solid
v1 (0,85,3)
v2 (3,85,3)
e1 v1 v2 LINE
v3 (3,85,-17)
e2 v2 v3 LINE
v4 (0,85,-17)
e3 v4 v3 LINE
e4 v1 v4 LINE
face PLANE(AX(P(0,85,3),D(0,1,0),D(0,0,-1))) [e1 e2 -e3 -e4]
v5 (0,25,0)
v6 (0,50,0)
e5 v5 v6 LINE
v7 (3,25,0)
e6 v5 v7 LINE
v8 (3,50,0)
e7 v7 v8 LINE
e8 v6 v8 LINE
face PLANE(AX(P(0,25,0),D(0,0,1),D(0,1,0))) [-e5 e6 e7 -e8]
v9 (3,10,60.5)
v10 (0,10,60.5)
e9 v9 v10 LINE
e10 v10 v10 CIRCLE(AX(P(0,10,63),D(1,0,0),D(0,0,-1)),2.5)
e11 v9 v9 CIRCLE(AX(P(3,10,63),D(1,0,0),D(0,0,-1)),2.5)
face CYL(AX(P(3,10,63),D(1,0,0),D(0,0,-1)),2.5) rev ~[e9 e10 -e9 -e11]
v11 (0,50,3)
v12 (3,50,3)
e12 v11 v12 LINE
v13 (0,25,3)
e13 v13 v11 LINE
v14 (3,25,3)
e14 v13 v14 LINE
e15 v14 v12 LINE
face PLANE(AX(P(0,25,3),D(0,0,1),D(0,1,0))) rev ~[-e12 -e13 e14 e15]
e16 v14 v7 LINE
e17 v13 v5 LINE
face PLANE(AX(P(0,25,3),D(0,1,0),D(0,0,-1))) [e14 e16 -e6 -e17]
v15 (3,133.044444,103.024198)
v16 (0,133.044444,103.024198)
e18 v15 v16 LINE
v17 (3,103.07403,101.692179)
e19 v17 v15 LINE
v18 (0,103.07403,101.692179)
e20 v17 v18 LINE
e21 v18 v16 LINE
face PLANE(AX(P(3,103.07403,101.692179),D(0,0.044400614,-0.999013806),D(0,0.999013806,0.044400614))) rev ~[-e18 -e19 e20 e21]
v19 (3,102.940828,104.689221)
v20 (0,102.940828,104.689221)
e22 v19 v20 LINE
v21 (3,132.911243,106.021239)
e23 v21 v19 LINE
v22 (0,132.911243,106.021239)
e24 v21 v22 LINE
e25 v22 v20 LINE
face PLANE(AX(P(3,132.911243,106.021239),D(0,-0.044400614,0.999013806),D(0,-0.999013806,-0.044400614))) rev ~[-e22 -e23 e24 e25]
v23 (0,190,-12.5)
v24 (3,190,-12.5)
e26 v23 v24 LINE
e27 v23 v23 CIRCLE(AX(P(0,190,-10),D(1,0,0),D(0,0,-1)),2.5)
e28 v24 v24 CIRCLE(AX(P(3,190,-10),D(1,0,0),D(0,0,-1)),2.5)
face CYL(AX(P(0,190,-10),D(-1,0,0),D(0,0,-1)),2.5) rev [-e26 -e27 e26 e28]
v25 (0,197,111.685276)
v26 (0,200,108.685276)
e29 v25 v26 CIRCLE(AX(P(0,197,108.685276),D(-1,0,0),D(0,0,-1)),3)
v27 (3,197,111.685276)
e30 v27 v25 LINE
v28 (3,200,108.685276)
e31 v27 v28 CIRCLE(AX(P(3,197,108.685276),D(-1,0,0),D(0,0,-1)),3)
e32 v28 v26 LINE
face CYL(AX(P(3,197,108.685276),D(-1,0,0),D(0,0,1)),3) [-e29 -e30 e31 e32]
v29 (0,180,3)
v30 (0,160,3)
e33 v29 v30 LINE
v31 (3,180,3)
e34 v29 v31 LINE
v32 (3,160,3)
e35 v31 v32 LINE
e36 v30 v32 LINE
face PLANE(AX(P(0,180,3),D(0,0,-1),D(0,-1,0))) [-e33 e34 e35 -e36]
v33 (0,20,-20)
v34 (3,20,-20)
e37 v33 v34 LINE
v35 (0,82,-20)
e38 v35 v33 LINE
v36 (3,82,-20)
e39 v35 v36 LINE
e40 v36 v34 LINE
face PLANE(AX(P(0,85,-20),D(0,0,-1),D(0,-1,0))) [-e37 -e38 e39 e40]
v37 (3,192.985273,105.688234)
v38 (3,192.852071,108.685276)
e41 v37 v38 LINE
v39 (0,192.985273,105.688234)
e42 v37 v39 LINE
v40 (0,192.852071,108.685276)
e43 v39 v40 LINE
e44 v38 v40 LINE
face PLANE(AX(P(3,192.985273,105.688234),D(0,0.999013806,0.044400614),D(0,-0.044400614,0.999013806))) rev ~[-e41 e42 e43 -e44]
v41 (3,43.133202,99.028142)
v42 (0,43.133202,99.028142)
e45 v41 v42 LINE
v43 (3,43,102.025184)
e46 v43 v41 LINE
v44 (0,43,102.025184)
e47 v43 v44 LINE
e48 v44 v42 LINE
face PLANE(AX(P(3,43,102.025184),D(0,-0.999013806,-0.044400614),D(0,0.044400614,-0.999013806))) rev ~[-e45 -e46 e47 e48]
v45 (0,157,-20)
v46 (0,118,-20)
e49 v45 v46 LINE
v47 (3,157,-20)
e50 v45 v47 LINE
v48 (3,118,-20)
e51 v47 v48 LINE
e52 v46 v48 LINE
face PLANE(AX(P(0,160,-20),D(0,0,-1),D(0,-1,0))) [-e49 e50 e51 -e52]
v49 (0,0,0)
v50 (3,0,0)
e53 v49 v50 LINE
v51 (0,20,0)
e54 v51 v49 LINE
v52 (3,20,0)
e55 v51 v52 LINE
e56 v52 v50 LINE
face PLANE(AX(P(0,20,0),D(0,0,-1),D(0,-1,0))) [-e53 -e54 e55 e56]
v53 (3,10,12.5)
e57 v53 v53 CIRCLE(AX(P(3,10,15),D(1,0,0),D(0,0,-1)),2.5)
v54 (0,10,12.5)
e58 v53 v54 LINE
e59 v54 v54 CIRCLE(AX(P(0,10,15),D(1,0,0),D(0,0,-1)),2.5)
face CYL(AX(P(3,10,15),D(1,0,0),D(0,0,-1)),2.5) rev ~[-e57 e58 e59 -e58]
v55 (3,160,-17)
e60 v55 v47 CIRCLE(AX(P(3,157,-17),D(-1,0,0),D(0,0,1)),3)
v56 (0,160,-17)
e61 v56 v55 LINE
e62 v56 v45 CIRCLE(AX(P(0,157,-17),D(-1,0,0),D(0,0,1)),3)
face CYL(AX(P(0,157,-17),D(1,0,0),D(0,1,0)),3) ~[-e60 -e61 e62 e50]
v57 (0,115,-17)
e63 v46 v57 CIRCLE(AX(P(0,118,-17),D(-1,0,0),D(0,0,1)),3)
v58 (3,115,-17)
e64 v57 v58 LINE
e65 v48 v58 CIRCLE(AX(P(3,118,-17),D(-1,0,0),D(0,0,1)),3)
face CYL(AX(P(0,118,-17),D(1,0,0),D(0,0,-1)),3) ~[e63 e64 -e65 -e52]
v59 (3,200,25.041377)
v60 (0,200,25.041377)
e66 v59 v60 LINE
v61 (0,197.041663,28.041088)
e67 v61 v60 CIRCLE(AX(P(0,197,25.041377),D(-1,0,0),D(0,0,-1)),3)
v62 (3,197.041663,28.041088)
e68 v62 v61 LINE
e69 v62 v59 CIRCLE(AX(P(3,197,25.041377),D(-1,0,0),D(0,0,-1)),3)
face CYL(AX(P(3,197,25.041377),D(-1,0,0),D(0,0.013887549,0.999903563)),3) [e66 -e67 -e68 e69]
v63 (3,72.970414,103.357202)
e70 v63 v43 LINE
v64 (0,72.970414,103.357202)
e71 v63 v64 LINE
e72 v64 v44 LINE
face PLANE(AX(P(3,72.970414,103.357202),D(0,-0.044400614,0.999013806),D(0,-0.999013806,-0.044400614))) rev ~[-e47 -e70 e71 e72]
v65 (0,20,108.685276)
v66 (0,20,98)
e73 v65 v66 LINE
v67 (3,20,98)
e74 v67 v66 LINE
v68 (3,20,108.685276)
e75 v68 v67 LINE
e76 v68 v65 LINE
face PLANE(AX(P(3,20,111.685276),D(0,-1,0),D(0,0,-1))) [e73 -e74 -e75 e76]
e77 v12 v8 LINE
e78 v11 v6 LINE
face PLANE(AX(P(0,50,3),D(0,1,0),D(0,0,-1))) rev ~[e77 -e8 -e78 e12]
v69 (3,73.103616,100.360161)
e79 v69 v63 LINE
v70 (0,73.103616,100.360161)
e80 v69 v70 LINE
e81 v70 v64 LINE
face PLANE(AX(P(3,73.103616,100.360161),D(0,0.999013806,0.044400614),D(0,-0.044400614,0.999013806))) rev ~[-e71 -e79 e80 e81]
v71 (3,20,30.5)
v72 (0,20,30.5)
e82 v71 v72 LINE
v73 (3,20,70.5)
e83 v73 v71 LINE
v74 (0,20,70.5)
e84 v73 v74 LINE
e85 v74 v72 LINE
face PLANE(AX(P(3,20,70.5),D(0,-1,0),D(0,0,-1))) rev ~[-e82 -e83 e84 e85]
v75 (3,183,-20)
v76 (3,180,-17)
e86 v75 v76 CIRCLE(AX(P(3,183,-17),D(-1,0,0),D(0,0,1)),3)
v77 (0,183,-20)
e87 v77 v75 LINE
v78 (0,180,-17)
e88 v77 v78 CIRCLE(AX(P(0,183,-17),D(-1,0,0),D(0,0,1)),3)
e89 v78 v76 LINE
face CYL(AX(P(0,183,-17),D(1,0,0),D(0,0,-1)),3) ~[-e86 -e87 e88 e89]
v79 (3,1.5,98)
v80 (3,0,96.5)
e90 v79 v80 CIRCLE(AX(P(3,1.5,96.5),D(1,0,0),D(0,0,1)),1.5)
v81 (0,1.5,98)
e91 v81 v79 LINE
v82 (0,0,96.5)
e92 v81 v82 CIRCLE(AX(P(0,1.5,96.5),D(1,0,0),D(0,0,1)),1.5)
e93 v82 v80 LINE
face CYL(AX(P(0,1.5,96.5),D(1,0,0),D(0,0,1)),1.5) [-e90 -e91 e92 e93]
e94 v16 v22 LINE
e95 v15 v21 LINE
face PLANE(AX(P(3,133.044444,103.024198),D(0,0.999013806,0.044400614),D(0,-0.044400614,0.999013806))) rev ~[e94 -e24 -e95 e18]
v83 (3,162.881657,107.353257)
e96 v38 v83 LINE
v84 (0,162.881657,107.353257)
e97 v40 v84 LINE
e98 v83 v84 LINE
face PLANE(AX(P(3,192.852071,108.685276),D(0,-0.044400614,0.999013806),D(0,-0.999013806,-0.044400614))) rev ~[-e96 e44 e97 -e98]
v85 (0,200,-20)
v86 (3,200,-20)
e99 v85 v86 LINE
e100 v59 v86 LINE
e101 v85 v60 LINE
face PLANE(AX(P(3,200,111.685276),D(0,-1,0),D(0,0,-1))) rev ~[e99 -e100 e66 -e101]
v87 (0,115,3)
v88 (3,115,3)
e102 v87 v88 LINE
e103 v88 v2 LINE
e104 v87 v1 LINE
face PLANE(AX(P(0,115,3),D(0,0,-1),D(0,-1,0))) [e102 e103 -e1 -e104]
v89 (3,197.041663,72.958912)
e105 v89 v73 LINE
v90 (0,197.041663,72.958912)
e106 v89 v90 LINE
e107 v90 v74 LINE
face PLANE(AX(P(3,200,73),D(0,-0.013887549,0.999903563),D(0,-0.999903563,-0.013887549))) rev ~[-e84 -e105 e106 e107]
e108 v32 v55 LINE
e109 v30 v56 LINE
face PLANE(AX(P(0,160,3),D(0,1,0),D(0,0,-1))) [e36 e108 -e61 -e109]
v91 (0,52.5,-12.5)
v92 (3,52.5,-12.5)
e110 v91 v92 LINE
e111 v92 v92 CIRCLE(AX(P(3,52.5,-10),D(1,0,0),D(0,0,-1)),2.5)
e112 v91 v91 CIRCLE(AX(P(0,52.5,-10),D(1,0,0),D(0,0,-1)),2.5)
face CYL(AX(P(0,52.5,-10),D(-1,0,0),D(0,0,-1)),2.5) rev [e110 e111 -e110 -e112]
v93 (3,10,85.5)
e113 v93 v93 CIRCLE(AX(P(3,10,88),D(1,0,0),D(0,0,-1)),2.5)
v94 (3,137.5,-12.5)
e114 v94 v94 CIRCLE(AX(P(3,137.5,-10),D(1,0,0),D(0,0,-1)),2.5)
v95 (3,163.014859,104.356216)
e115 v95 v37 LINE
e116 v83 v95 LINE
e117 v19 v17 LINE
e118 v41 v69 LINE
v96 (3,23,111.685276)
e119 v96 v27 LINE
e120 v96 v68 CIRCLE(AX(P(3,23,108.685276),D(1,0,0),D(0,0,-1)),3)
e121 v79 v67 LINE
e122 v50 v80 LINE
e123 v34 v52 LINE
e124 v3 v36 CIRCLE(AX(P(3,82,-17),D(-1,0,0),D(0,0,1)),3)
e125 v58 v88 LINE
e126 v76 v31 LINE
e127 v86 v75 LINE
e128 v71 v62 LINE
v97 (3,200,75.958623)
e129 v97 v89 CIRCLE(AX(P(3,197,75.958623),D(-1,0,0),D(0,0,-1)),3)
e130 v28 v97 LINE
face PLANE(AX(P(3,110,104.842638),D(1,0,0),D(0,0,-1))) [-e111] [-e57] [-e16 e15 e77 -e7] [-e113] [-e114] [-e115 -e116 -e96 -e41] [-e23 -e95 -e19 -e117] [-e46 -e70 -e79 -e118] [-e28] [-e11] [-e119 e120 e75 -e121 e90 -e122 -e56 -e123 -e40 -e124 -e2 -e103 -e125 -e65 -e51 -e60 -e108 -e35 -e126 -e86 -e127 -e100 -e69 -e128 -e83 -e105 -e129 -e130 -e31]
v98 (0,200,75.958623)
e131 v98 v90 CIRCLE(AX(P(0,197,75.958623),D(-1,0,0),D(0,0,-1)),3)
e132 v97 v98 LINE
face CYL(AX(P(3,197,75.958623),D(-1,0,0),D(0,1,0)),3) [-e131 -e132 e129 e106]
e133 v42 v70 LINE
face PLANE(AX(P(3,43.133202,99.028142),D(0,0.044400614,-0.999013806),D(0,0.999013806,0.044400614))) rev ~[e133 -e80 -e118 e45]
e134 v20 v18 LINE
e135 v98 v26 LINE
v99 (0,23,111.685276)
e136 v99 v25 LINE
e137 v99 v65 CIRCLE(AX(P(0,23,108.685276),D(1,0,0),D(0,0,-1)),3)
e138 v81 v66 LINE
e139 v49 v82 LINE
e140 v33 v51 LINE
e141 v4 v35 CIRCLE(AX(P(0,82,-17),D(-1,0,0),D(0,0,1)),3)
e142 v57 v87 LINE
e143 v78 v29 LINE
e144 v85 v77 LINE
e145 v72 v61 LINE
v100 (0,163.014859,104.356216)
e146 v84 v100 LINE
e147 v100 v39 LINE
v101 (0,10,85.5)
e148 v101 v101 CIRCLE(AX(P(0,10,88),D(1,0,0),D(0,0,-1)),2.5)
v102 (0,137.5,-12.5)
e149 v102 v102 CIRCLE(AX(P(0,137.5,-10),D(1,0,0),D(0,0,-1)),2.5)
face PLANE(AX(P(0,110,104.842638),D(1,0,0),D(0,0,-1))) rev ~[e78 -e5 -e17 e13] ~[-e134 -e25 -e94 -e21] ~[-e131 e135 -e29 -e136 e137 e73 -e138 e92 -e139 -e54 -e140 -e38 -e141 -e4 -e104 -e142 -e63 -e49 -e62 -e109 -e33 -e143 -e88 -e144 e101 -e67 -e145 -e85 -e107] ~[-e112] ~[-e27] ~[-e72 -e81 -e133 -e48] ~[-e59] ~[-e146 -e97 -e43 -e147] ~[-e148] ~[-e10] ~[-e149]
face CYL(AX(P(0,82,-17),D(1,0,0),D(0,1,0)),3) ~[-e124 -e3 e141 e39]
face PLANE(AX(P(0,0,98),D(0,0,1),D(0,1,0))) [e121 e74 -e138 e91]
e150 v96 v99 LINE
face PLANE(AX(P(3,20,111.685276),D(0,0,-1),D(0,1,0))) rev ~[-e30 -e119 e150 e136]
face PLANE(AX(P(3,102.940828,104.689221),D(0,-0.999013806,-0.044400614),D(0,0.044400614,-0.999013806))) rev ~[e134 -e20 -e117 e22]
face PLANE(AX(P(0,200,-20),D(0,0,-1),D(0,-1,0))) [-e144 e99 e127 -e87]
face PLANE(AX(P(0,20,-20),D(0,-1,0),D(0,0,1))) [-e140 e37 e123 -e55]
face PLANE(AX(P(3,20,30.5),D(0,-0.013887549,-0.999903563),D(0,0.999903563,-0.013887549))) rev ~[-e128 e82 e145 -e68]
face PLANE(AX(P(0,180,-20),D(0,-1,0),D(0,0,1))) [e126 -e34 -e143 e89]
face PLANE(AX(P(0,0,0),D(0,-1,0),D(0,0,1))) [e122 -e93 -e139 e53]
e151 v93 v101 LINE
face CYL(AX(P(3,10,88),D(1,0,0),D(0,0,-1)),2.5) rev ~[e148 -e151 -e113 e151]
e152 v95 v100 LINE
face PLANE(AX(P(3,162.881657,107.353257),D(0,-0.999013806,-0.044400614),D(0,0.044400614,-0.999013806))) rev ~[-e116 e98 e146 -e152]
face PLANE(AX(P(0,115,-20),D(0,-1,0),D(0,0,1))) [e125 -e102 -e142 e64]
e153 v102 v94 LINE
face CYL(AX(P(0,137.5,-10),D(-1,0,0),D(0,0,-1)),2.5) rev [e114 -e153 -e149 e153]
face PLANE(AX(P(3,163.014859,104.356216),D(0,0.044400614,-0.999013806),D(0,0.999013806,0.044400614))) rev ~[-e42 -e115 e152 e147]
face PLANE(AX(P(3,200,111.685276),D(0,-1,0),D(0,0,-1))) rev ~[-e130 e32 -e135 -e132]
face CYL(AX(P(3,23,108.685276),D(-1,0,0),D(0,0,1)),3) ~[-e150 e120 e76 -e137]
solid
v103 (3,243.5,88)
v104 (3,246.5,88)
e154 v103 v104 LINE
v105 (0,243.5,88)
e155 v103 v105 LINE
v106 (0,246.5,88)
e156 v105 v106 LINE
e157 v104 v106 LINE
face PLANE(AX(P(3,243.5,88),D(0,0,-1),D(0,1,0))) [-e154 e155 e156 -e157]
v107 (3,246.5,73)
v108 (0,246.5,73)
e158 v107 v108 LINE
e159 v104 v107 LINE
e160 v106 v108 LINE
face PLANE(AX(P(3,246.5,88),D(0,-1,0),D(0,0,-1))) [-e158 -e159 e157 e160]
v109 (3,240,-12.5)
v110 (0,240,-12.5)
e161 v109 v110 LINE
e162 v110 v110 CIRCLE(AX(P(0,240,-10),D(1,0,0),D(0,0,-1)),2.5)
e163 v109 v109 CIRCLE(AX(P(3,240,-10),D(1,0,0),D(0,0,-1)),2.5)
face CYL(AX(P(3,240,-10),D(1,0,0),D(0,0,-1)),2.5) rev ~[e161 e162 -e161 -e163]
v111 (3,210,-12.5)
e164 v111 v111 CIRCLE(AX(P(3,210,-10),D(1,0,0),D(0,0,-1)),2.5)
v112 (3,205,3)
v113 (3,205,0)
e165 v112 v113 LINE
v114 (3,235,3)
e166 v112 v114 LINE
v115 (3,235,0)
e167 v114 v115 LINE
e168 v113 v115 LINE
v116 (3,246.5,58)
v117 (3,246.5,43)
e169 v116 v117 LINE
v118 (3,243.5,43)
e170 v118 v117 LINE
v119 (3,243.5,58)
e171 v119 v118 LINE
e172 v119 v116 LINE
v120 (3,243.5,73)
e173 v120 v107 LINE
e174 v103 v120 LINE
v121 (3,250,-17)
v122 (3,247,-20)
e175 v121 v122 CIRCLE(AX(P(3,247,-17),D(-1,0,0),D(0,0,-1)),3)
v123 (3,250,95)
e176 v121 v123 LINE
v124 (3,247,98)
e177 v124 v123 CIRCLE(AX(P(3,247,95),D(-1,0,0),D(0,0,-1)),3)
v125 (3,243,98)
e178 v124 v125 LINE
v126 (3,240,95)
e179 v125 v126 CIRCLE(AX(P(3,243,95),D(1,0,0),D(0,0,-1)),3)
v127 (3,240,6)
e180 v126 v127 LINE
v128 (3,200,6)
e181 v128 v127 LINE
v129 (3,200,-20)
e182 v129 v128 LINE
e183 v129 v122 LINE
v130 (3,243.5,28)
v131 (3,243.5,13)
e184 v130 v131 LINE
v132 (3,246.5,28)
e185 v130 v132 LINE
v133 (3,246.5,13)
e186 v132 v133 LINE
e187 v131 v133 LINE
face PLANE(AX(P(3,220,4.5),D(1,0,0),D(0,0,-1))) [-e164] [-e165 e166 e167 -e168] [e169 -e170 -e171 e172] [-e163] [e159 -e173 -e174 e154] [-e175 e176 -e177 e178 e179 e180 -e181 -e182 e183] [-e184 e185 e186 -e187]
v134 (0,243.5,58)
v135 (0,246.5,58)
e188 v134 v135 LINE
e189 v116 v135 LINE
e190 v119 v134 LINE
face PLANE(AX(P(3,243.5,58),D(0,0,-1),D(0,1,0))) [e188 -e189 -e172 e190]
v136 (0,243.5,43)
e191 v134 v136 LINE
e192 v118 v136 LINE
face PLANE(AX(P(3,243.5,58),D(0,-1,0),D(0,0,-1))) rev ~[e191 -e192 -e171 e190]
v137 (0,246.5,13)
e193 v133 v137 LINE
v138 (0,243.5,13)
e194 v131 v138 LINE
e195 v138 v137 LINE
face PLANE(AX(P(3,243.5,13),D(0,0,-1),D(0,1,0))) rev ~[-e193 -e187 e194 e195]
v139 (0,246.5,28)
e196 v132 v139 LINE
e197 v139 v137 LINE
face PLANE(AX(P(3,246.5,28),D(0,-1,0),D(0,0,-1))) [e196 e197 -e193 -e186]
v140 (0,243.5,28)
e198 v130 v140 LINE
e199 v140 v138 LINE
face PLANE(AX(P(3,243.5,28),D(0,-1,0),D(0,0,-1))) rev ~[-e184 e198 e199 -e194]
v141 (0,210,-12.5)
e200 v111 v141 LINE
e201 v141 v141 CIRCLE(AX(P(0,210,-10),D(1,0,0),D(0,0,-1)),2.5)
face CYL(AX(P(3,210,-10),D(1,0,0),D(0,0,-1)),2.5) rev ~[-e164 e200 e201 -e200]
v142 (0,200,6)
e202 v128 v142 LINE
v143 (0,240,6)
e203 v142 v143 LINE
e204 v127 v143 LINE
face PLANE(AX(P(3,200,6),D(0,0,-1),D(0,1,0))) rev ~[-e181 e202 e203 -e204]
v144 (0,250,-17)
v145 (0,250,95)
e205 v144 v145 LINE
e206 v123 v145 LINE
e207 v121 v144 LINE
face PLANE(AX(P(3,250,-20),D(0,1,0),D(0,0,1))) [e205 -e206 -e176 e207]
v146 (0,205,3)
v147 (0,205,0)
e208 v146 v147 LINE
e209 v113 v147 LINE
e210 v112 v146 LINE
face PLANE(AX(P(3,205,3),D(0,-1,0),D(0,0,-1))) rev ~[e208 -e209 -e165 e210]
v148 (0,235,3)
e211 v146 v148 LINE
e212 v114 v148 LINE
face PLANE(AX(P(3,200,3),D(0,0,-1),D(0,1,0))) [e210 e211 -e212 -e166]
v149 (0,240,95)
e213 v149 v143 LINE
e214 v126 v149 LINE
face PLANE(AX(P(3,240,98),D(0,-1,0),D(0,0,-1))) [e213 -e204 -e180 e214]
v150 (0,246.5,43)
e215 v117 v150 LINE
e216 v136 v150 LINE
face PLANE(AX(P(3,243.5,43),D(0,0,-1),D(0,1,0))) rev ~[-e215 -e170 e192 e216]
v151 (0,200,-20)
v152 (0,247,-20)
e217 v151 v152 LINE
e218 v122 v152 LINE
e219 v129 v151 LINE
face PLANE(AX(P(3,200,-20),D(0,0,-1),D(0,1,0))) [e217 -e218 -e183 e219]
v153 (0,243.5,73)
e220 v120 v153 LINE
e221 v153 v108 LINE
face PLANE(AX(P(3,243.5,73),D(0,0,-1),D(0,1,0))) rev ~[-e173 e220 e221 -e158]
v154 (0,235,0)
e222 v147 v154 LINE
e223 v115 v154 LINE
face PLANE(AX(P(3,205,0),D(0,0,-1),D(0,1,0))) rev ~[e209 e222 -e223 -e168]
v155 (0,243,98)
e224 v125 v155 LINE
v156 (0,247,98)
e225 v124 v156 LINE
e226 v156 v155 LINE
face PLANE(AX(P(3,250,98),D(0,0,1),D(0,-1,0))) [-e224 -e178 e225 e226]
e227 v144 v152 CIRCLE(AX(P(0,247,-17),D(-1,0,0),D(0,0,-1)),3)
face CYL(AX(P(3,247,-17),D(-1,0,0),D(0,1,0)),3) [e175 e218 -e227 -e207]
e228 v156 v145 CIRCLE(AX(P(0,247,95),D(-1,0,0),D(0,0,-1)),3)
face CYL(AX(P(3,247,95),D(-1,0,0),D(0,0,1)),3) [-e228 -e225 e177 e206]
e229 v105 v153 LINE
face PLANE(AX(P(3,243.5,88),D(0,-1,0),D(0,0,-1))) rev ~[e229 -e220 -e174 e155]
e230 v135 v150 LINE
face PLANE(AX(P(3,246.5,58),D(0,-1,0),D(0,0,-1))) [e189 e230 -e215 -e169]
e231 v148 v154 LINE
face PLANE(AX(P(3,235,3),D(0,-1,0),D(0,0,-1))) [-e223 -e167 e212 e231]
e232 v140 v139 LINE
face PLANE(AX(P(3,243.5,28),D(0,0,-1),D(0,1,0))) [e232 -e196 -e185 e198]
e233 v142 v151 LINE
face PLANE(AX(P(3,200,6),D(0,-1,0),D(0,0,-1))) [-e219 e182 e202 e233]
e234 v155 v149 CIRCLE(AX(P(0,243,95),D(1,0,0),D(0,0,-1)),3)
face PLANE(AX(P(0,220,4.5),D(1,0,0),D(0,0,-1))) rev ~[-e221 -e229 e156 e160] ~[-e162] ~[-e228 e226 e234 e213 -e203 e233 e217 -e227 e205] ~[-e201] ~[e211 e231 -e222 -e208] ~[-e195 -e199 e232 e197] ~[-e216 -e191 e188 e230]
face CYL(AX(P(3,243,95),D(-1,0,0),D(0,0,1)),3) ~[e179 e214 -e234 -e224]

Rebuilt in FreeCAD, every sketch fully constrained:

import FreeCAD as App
import Part
import Sketcher
Q = App.Units.Quantity


def edges_at(feature, points):
    """Names of the edges that pass closest to the given points."""
    edges = feature.Shape.Edges
    near = lambda p: min(range(len(edges)), key=lambda i: edges[i].distToShape(Part.Vertex(*p))[0])
    return sorted({f"Edge{near(p) + 1}" for p in points})

doc = App.newDocument("Part")
params = doc.addObject("Spreadsheet::Sheet", "Params")
for row, (alias, value) in enumerate([
    ("sketch1_diameter", "5 mm"),
    ("sketch1_width", "20 mm"),
    ("sketch1_width2", "65 mm"),
    ("sketch1_width3", "30 mm"),
    ("sketch1_width4", "45 mm"),
    ("pad1_length", "3 mm"),
    ("sketch2_width", "180 mm"),
    ("sketch2_length", "3 mm"),
    ("sketch2_length2", "30 mm"),
    ("pad2_length", "3 mm"),
    ("sketch3_height", "45 mm"),
    ("sketch3_height2", "40 mm"),
    ("pocket1_length", "4 mm"),
    ("fillet_radius", "3 mm"),
    ("sketch4_diameter", "5 mm"),
    ("pocket2_length", "4 mm"),
    ("fillet2_radius", "1.5 mm"),
    ("sketch5_diameter", "5 mm"),
    ("sketch6_width", "40 mm"),
    ("sketch6_width2", "50 mm"),
    ("sketch6_width3", "3 mm"),
    ("sketch6_height", "95 mm"),
    ("sketch6_height2", "23 mm"),
    ("pad3_length", "3 mm"),
    ("sketch7_diameter", "5 mm"),
    ("pocket4_length", "10 mm"),
    ("sketch8_width", "30 mm"),
    ("sketch8_height", "3 mm"),
    ("sketch9_width", "40 mm"),
    ("sketch9_height", "3 mm"),
    ("pad4_length", "3 mm"),
    ("fillet3_radius", "3 mm"),
], start=1):
    params.set(f"A{row}", alias)
    params.set(f"B{row}", "=" + value)
    params.setAlias(f"B{row}", alias)

body = doc.addObject("PartDesign::Body", "Body")

# Sketch on YZ plane
sketch1 = body.newObject("Sketcher::SketchObject", "Sketch")
sketch1.AttachmentSupport = (doc.getObject("YZ_Plane"), [""])
sketch1.MapMode = "FlatFace"
sketch1.addGeometry([
    Part.LineSegment(App.Vector(0, 98, 0), App.Vector(0, 0, 0)),  # 0
    Part.LineSegment(App.Vector(0, 0, 0), App.Vector(20, 0, 0)),  # 1
    Part.LineSegment(App.Vector(20, 0, 0), App.Vector(20, -20, 0)),  # 2
    Part.LineSegment(App.Vector(20, -20, 0), App.Vector(85, -20, 0)),  # 3
    Part.LineSegment(App.Vector(85, -20, 0), App.Vector(85, 3, 0)),  # 4
    Part.LineSegment(App.Vector(85, 3, 0), App.Vector(115, 3, 0)),  # 5
    Part.LineSegment(App.Vector(115, 3, 0), App.Vector(115, -20, 0)),  # 6
    Part.LineSegment(App.Vector(115, -20, 0), App.Vector(160, -20, 0)),  # 7
    Part.LineSegment(App.Vector(160, -20, 0), App.Vector(160, 3, 0)),  # 8
    Part.LineSegment(App.Vector(160, 3, 0), App.Vector(180, 3, 0)),  # 9
    Part.LineSegment(App.Vector(180, 3, 0), App.Vector(180, -20, 0)),  # 10
    Part.LineSegment(App.Vector(180, -20, 0), App.Vector(200, -20, 0)),  # 11
    Part.LineSegment(App.Vector(200, -20, 0), App.Vector(200, 98, 0)),  # 12
    Part.LineSegment(App.Vector(200, 98, 0), App.Vector(0, 98, 0)),  # 13
    Part.Circle(App.Vector(52.5, -10, 0), App.Vector(0, 0, 1), 2.5),  # 14
    Part.LineSegment(App.Vector(25, 3, 0), App.Vector(50, 3, 0)),  # 15
    Part.LineSegment(App.Vector(50, 3, 0), App.Vector(50, 0, 0)),  # 16
    Part.LineSegment(App.Vector(50, 0, 0), App.Vector(25, 0, 0)),  # 17
    Part.LineSegment(App.Vector(25, 0, 0), App.Vector(25, 3, 0)),  # 18
    Part.Circle(App.Vector(137.5, -10, 0), App.Vector(0, 0, 1), 2.5),  # 19
    Part.Circle(App.Vector(190, -10, 0), App.Vector(0, 0, 1), 2.5),  # 20
], False)
sketch1.addConstraint([
    Sketcher.Constraint("Coincident", 0, 2, 1, 1),
    Sketcher.Constraint("Coincident", 1, 2, 2, 1),
    Sketcher.Constraint("Coincident", 2, 2, 3, 1),
    Sketcher.Constraint("Coincident", 3, 2, 4, 1),
    Sketcher.Constraint("Coincident", 4, 2, 5, 1),
    Sketcher.Constraint("Coincident", 5, 2, 6, 1),
    Sketcher.Constraint("Coincident", 6, 2, 7, 1),
    Sketcher.Constraint("Coincident", 7, 2, 8, 1),
    Sketcher.Constraint("Coincident", 8, 2, 9, 1),
    Sketcher.Constraint("Coincident", 9, 2, 10, 1),
    Sketcher.Constraint("Coincident", 10, 2, 11, 1),
    Sketcher.Constraint("Coincident", 11, 2, 12, 1),
    Sketcher.Constraint("Coincident", 12, 2, 13, 1),
    Sketcher.Constraint("Coincident", 13, 2, 0, 1),
    Sketcher.Constraint("Coincident", 15, 2, 16, 1),
    Sketcher.Constraint("Coincident", 16, 2, 17, 1),
    Sketcher.Constraint("Coincident", 17, 2, 18, 1),
    Sketcher.Constraint("Coincident", 18, 2, 15, 1),
    Sketcher.Constraint("Vertical", 0),
    Sketcher.Constraint("Horizontal", 1),
    Sketcher.Constraint("Vertical", 2),
    Sketcher.Constraint("Horizontal", 3),
    Sketcher.Constraint("Vertical", 4),
    Sketcher.Constraint("Horizontal", 5),
    Sketcher.Constraint("Vertical", 6),
    Sketcher.Constraint("Horizontal", 7),
    Sketcher.Constraint("Vertical", 8),
    Sketcher.Constraint("Horizontal", 9),
    Sketcher.Constraint("Vertical", 10),
    Sketcher.Constraint("Horizontal", 11),
    Sketcher.Constraint("Vertical", 12),
    Sketcher.Constraint("Horizontal", 13),
    Sketcher.Constraint("Horizontal", 15),
    Sketcher.Constraint("Vertical", 16),
    Sketcher.Constraint("Horizontal", 17),
    Sketcher.Constraint("Vertical", 18),
    Sketcher.Constraint("Coincident", 0, 2, -1, 1),
    Sketcher.Constraint("Equal", 14, 19),
    Sketcher.Constraint("Equal", 19, 20),
    Sketcher.Constraint("PointOnObject", 16, 2, -1),
    Sketcher.Constraint("Horizontal", 14, 3, 19, 3),
    Sketcher.Constraint("Horizontal", 19, 3, 20, 3),
    Sketcher.Constraint("Horizontal", 3, 2, 6, 2),
    Sketcher.Constraint("Horizontal", 5, 2, 8, 2),
    Sketcher.Constraint("Horizontal", 7, 2, 10, 2),
    Sketcher.Constraint("Horizontal", 9, 2, 15, 2),
    Sketcher.Constraint("Equal", 1, 9),
    Sketcher.Constraint("Equal", 9, 11),
    Sketcher.Constraint("Equal", 11, 2),
    Sketcher.Constraint("Diameter", 14, Q("5 mm")),
    Sketcher.Constraint("DistanceX", 1, 1, 1, 2, Q("20 mm")),
    Sketcher.Constraint("DistanceX", 3, 1, 3, 2, Q("65 mm")),
    Sketcher.Constraint("DistanceX", 5, 1, 5, 2, Q("30 mm")),
    Sketcher.Constraint("DistanceX", 7, 1, 7, 2, Q("45 mm")),
    Sketcher.Constraint("DistanceX", 15, 1, 15, 2, Q("25 mm")),
    Sketcher.Constraint("DistanceY", 0, 2, 0, 1, Q("98 mm")),
    Sketcher.Constraint("DistanceY", 4, 1, 4, 2, Q("23 mm")),
    Sketcher.Constraint("DistanceY", 14, 3, -1, 1, Q("10 mm")),
    Sketcher.Constraint("DistanceX", -1, 1, 20, 3, Q("190 mm")),
    Sketcher.Constraint("DistanceX", -1, 1, 15, 2, Q("50 mm")),
    Sketcher.Constraint("DistanceX", 14, 3, 19, 3, Q("85 mm")),
    Sketcher.Constraint("DistanceX", -1, 1, 14, 3, Q("52.5 mm")),
])
sketch1.setExpression("Constraints[49]", "Params.sketch1_diameter")
sketch1.setExpression("Constraints[50]", "Params.sketch1_width")
sketch1.setExpression("Constraints[51]", "Params.sketch1_width2")
sketch1.setExpression("Constraints[52]", "Params.sketch1_width3")
sketch1.setExpression("Constraints[53]", "Params.sketch1_width4")
pad1 = body.newObject("PartDesign::Pad", "Pad")
pad1.Profile = sketch1
pad1.setExpression("Length", "Params.pad1_length")

# Sketch on YZ plane
sketch2 = body.newObject("Sketcher::SketchObject", "Sketch001")
sketch2.AttachmentSupport = (doc.getObject("YZ_Plane"), [""])
sketch2.MapMode = "FlatFace"
sketch2.AttachmentOffset = App.Placement(App.Vector(0, 0, 3), App.Rotation())
sketch2.addGeometry([
    Part.LineSegment(App.Vector(200, 111.7, 0), App.Vector(20, 111.7, 0)),  # 0
    Part.LineSegment(App.Vector(20, 111.7, 0), App.Vector(20, 98, 0)),  # 1
    Part.LineSegment(App.Vector(20, 98, 0), App.Vector(200, 98, 0)),  # 2
    Part.LineSegment(App.Vector(200, 98, 0), App.Vector(200, 111.7, 0)),  # 3
    Part.LineSegment(App.Vector(73, 103.4, 0), App.Vector(73.1, 100.4, 0)),  # 4
    Part.LineSegment(App.Vector(73.1, 100.4, 0), App.Vector(43.1, 99, 0)),  # 5
    Part.LineSegment(App.Vector(43.1, 99, 0), App.Vector(43, 102, 0)),  # 6
    Part.LineSegment(App.Vector(43, 102, 0), App.Vector(73, 103.4, 0)),  # 7
    Part.LineSegment(App.Vector(192.9, 108.7, 0), App.Vector(193, 105.7, 0)),  # 8
    Part.LineSegment(App.Vector(193, 105.7, 0), App.Vector(163, 104.4, 0)),  # 9
    Part.LineSegment(App.Vector(163, 104.4, 0), App.Vector(162.9, 107.4, 0)),  # 10
    Part.LineSegment(App.Vector(162.9, 107.4, 0), App.Vector(192.9, 108.7, 0)),  # 11
    Part.LineSegment(App.Vector(132.9, 106, 0), App.Vector(133, 103, 0)),  # 12
    Part.LineSegment(App.Vector(133, 103, 0), App.Vector(103.1, 101.7, 0)),  # 13
    Part.LineSegment(App.Vector(103.1, 101.7, 0), App.Vector(102.9, 104.7, 0)),  # 14
    Part.LineSegment(App.Vector(102.9, 104.7, 0), App.Vector(132.9, 106, 0)),  # 15
], False)
sketch2.addConstraint([
    Sketcher.Constraint("Coincident", 0, 2, 1, 1),
    Sketcher.Constraint("Coincident", 1, 2, 2, 1),
    Sketcher.Constraint("Coincident", 2, 2, 3, 1),
    Sketcher.Constraint("Coincident", 3, 2, 0, 1),
    Sketcher.Constraint("Coincident", 4, 2, 5, 1),
    Sketcher.Constraint("Coincident", 5, 2, 6, 1),
    Sketcher.Constraint("Coincident", 6, 2, 7, 1),
    Sketcher.Constraint("Coincident", 7, 2, 4, 1),
    Sketcher.Constraint("Coincident", 8, 2, 9, 1),
    Sketcher.Constraint("Coincident", 9, 2, 10, 1),
    Sketcher.Constraint("Coincident", 10, 2, 11, 1),
    Sketcher.Constraint("Coincident", 11, 2, 8, 1),
    Sketcher.Constraint("Coincident", 12, 2, 13, 1),
    Sketcher.Constraint("Coincident", 13, 2, 14, 1),
    Sketcher.Constraint("Coincident", 14, 2, 15, 1),
    Sketcher.Constraint("Coincident", 15, 2, 12, 1),
    Sketcher.Constraint("Horizontal", 0),
    Sketcher.Constraint("Vertical", 1),
    Sketcher.Constraint("Horizontal", 2),
    Sketcher.Constraint("Vertical", 3),
    Sketcher.Constraint("Perpendicular", 4, 5),
    Sketcher.Constraint("Perpendicular", 5, 6),
    Sketcher.Constraint("Perpendicular", 6, 7),
    Sketcher.Constraint("Perpendicular", 7, 8),
    Sketcher.Constraint("Perpendicular", 8, 9),
    Sketcher.Constraint("Perpendicular", 9, 10),
    Sketcher.Constraint("Perpendicular", 10, 11),
    Sketcher.Constraint("Perpendicular", 11, 12),
    Sketcher.Constraint("Perpendicular", 12, 13),
    Sketcher.Constraint("Perpendicular", 13, 14),
    Sketcher.Constraint("Perpendicular", 14, 15),
    Sketcher.Constraint("Equal", 6, 8),
    Sketcher.Constraint("Equal", 7, 9),
    Sketcher.Constraint("Equal", 10, 12),
    Sketcher.Constraint("Equal", 11, 13),
    Sketcher.Constraint("DistanceX", 0, 2, 0, 1, Q("180 mm")),
    Sketcher.Constraint("Distance", 4, Q("3 mm")),
    Sketcher.Constraint("Distance", 5, Q("30 mm")),
    Sketcher.Constraint("DistanceX", -1, 1, 0, 2, Q("20 mm")),
    Sketcher.Constraint("DistanceY", -1, 1, 1, 2, Q("98 mm")),
    Sketcher.Constraint("DistanceX", -1, 1, 6, 2, Q("43 mm")),
    Sketcher.Constraint("DistanceY", 11, 2, 3, 2, Q("3 mm")),
    Sketcher.Constraint("DistanceX", -1, 1, 5, 2, Q("43.133202 mm")),
    Sketcher.Constraint("DistanceY", 1, 2, 1, 1, Q("13.685276 mm")),
    Sketcher.Constraint("DistanceY", -1, 1, 4, 2, Q("100.360161 mm")),
    Sketcher.Constraint("DistanceX", -1, 1, 9, 2, Q("163.014859 mm")),
    Sketcher.Constraint("DistanceX", -1, 1, 13, 2, Q("103.07403 mm")),
    Sketcher.Constraint("DistanceY", -1, 1, 13, 2, Q("101.692179 mm")),
])
sketch2.setExpression("Constraints[35]", "Params.sketch2_width")
sketch2.setExpression("Constraints[36]", "Params.sketch2_length")
sketch2.setExpression("Constraints[37]", "Params.sketch2_length2")
pad2 = body.newObject("PartDesign::Pad", "Pad001")
pad2.Profile = sketch2
pad2.setExpression("Length", "Params.pad2_length")
pad2.Reversed = True

# Sketch on YZ plane
sketch3 = body.newObject("Sketcher::SketchObject", "Sketch002")
sketch3.AttachmentSupport = (doc.getObject("YZ_Plane"), [""])
sketch3.MapMode = "FlatFace"
sketch3.AttachmentOffset = App.Placement(App.Vector(0, 0, 3), App.Rotation())
sketch3.addGeometry([
    Part.LineSegment(App.Vector(200, 28, 0), App.Vector(200, 73, 0)),
    Part.LineSegment(App.Vector(200, 73, 0), App.Vector(20, 70, 0)),
    Part.LineSegment(App.Vector(20, 70, 0), App.Vector(20, 30, 0)),
    Part.LineSegment(App.Vector(20, 30, 0), App.Vector(200, 28, 0)),
], False)
sketch3.addConstraint([
    Sketcher.Constraint("Coincident", 0, 2, 1, 1),
    Sketcher.Constraint("Coincident", 1, 2, 2, 1),
    Sketcher.Constraint("Coincident", 2, 2, 3, 1),
    Sketcher.Constraint("Coincident", 3, 2, 0, 1),
    Sketcher.Constraint("Vertical", 0),
    Sketcher.Constraint("Vertical", 2),
    Sketcher.Constraint("Equal", 1, 3),
    Sketcher.Constraint("DistanceY", 0, 1, 0, 2, Q("45 mm")),
    Sketcher.Constraint("DistanceY", 2, 2, 2, 1, Q("40 mm")),
    Sketcher.Constraint("DistanceX", -1, 1, 0, 2, Q("200 mm")),
    Sketcher.Constraint("DistanceY", -1, 1, 0, 2, Q("73 mm")),
    Sketcher.Constraint("DistanceX", -1, 1, 1, 2, Q("20 mm")),
])
sketch3.setExpression("Constraints[7]", "Params.sketch3_height")
sketch3.setExpression("Constraints[8]", "Params.sketch3_height2")
pocket1 = body.newObject("PartDesign::Pocket", "Pocket")
pocket1.Profile = sketch3
pocket1.setExpression("Length", "Params.pocket1_length")
doc.recompute()

fillet = body.newObject("PartDesign::Fillet", "Fillet")
fillet.Base = (pocket1, edges_at(pocket1, [
    (1.5, 200, 28),
    (1.5, 200, 73),
    (1.5, 180, -20),
    (1.5, 160, -20),
    (1.5, 115, -20),
    (1.5, 85, -20),
    (1.5, 20, 111.685),
    (1.5, 200, 111.685),
]))
fillet.setExpression("Radius", "Params.fillet_radius")

# Sketch on YZ plane
sketch4 = body.newObject("Sketcher::SketchObject", "Sketch003")
sketch4.AttachmentSupport = (doc.getObject("YZ_Plane"), [""])
sketch4.MapMode = "FlatFace"
sketch4.AttachmentOffset = App.Placement(App.Vector(0, 0, 3), App.Rotation())
sketch4.addGeometry(Part.Circle(App.Vector(10, 88, 0), App.Vector(0, 0, 1), 2.5), False)
sketch4.addConstraint([
    Sketcher.Constraint("Diameter", 0, Q("5 mm")),
    Sketcher.Constraint("DistanceX", -1, 1, 0, 3, Q("10 mm")),
    Sketcher.Constraint("DistanceY", -1, 1, 0, 3, Q("88 mm")),
])
sketch4.setExpression("Constraints[0]", "Params.sketch4_diameter")
pocket2 = body.newObject("PartDesign::Pocket", "Pocket001")
pocket2.Profile = sketch4
pocket2.setExpression("Length", "Params.pocket2_length")
doc.recompute()

fillet2 = body.newObject("PartDesign::Fillet", "Fillet001")
fillet2.Base = (pocket2, edges_at(pocket2, [(1.5, 0, 98)]))
fillet2.setExpression("Radius", "Params.fillet2_radius")

# Sketch on YZ plane
sketch5 = body.newObject("Sketcher::SketchObject", "Sketch004")
sketch5.AttachmentSupport = (doc.getObject("YZ_Plane"), [""])
sketch5.MapMode = "FlatFace"
sketch5.AttachmentOffset = App.Placement(App.Vector(0, 0, 3), App.Rotation())
sketch5.addGeometry([
    Part.Circle(App.Vector(10, 63, 0), App.Vector(0, 0, 1), 2.5),
    Part.Circle(App.Vector(10, 15, 0), App.Vector(0, 0, 1), 2.5),
], False)
sketch5.addConstraint([
    Sketcher.Constraint("Equal", 0, 1),
    Sketcher.Constraint("Vertical", 0, 3, 1, 3),
    Sketcher.Constraint("Diameter", 0, Q("5 mm")),
    Sketcher.Constraint("DistanceX", -1, 1, 0, 3, Q("10 mm")),
    Sketcher.Constraint("DistanceY", -1, 1, 0, 3, Q("63 mm")),
    Sketcher.Constraint("DistanceY", -1, 1, 1, 3, Q("15 mm")),
])
sketch5.setExpression("Constraints[2]", "Params.sketch5_diameter")
pocket3 = body.newObject("PartDesign::Pocket", "Pocket002")
pocket3.Profile = sketch5
pocket3.Type = "ThroughAll"
body2 = doc.addObject("PartDesign::Body", "Body001")

# Sketch on YZ plane
sketch6 = body2.newObject("Sketcher::SketchObject", "Sketch005")
sketch6.AttachmentSupport = (doc.getObject("YZ_Plane001"), [""])
sketch6.MapMode = "FlatFace"
sketch6.AttachmentOffset = App.Placement(App.Vector(0, 0, 3), App.Rotation())
sketch6.addGeometry([
    Part.LineSegment(App.Vector(240, 98, 0), App.Vector(240, 3, 0)),  # 0
    Part.LineSegment(App.Vector(240, 3, 0), App.Vector(200, 3, 0)),  # 1
    Part.LineSegment(App.Vector(200, 3, 0), App.Vector(200, -20, 0)),  # 2
    Part.LineSegment(App.Vector(200, -20, 0), App.Vector(250, -20, 0)),  # 3
    Part.LineSegment(App.Vector(250, -20, 0), App.Vector(250, 98, 0)),  # 4
    Part.LineSegment(App.Vector(250, 98, 0), App.Vector(240, 98, 0)),  # 5
    Part.LineSegment(App.Vector(243.5, 73, 0), App.Vector(243.5, 88, 0)),  # 6
    Part.LineSegment(App.Vector(243.5, 88, 0), App.Vector(246.5, 88, 0)),  # 7
    Part.LineSegment(App.Vector(246.5, 88, 0), App.Vector(246.5, 73, 0)),  # 8
    Part.LineSegment(App.Vector(246.5, 73, 0), App.Vector(243.5, 73, 0)),  # 9
    Part.LineSegment(App.Vector(243.5, 43, 0), App.Vector(243.5, 58, 0)),  # 10
    Part.LineSegment(App.Vector(243.5, 58, 0), App.Vector(246.5, 58, 0)),  # 11
    Part.LineSegment(App.Vector(246.5, 58, 0), App.Vector(246.5, 43, 0)),  # 12
    Part.LineSegment(App.Vector(246.5, 43, 0), App.Vector(243.5, 43, 0)),  # 13
    Part.LineSegment(App.Vector(243.5, 13, 0), App.Vector(243.5, 28, 0)),  # 14
    Part.LineSegment(App.Vector(243.5, 28, 0), App.Vector(246.5, 28, 0)),  # 15
    Part.LineSegment(App.Vector(246.5, 28, 0), App.Vector(246.5, 13, 0)),  # 16
    Part.LineSegment(App.Vector(246.5, 13, 0), App.Vector(243.5, 13, 0)),  # 17
], False)
sketch6.addConstraint([
    Sketcher.Constraint("Coincident", 0, 2, 1, 1),
    Sketcher.Constraint("Coincident", 1, 2, 2, 1),
    Sketcher.Constraint("Coincident", 2, 2, 3, 1),
    Sketcher.Constraint("Coincident", 3, 2, 4, 1),
    Sketcher.Constraint("Coincident", 4, 2, 5, 1),
    Sketcher.Constraint("Coincident", 5, 2, 0, 1),
    Sketcher.Constraint("Coincident", 6, 2, 7, 1),
    Sketcher.Constraint("Coincident", 7, 2, 8, 1),
    Sketcher.Constraint("Coincident", 8, 2, 9, 1),
    Sketcher.Constraint("Coincident", 9, 2, 6, 1),
    Sketcher.Constraint("Coincident", 10, 2, 11, 1),
    Sketcher.Constraint("Coincident", 11, 2, 12, 1),
    Sketcher.Constraint("Coincident", 12, 2, 13, 1),
    Sketcher.Constraint("Coincident", 13, 2, 10, 1),
    Sketcher.Constraint("Coincident", 14, 2, 15, 1),
    Sketcher.Constraint("Coincident", 15, 2, 16, 1),
    Sketcher.Constraint("Coincident", 16, 2, 17, 1),
    Sketcher.Constraint("Coincident", 17, 2, 14, 1),
    Sketcher.Constraint("Vertical", 0),
    Sketcher.Constraint("Horizontal", 1),
    Sketcher.Constraint("Vertical", 2),
    Sketcher.Constraint("Horizontal", 3),
    Sketcher.Constraint("Vertical", 4),
    Sketcher.Constraint("Horizontal", 5),
    Sketcher.Constraint("Vertical", 6),
    Sketcher.Constraint("Horizontal", 7),
    Sketcher.Constraint("Vertical", 8),
    Sketcher.Constraint("Horizontal", 9),
    Sketcher.Constraint("Vertical", 10),
    Sketcher.Constraint("Horizontal", 11),
    Sketcher.Constraint("Vertical", 12),
    Sketcher.Constraint("Horizontal", 13),
    Sketcher.Constraint("Vertical", 14),
    Sketcher.Constraint("Horizontal", 15),
    Sketcher.Constraint("Vertical", 16),
    Sketcher.Constraint("Horizontal", 17),
    Sketcher.Constraint("Vertical", 9, 2, 10, 2),
    Sketcher.Constraint("Vertical", 8, 2, 11, 2),
    Sketcher.Constraint("Vertical", 13, 2, 14, 2),
    Sketcher.Constraint("Vertical", 12, 2, 15, 2),
    Sketcher.Constraint("Equal", 8, 10),
    Sketcher.Constraint("Equal", 12, 14),
    Sketcher.Constraint("DistanceX", 1, 2, 1, 1, Q("40 mm")),
    Sketcher.Constraint("DistanceX", 3, 1, 3, 2, Q("50 mm")),
    Sketcher.Constraint("DistanceX", 7, 1, 7, 2, Q("3 mm")),
    Sketcher.Constraint("DistanceY", 0, 2, 0, 1, Q("95 mm")),
    Sketcher.Constraint("DistanceY", 2, 2, 2, 1, Q("23 mm")),
    Sketcher.Constraint("DistanceY", 6, 1, 6, 2, Q("15 mm")),
    Sketcher.Constraint("DistanceX", -1, 1, 0, 2, Q("240 mm")),
    Sketcher.Constraint("DistanceY", -1, 1, 0, 2, Q("3 mm")),
    Sketcher.Constraint("DistanceY", -1, 1, 6, 2, Q("88 mm")),
    Sketcher.Constraint("DistanceY", -1, 1, 10, 2, Q("58 mm")),
    Sketcher.Constraint("DistanceY", -1, 1, 14, 2, Q("28 mm")),
    Sketcher.Constraint("DistanceX", -1, 1, 6, 2, Q("243.5 mm")),
])
sketch6.setExpression("Constraints[42]", "Params.sketch6_width")
sketch6.setExpression("Constraints[43]", "Params.sketch6_width2")
sketch6.setExpression("Constraints[44]", "Params.sketch6_width3")
sketch6.setExpression("Constraints[45]", "Params.sketch6_height")
sketch6.setExpression("Constraints[46]", "Params.sketch6_height2")
pad3 = body2.newObject("PartDesign::Pad", "Pad002")
pad3.Profile = sketch6
pad3.setExpression("Length", "Params.pad3_length")
pad3.Reversed = True

# Sketch on YZ plane
sketch7 = body2.newObject("Sketcher::SketchObject", "Sketch006")
sketch7.AttachmentSupport = (doc.getObject("YZ_Plane001"), [""])
sketch7.MapMode = "FlatFace"
sketch7.AttachmentOffset = App.Placement(App.Vector(0, 0, 3), App.Rotation())
sketch7.addGeometry([
    Part.Circle(App.Vector(240, -10, 0), App.Vector(0, 0, 1), 2.5),
    Part.Circle(App.Vector(210, -10, 0), App.Vector(0, 0, 1), 2.5),
], False)
sketch7.addConstraint([
    Sketcher.Constraint("Equal", 0, 1),
    Sketcher.Constraint("Horizontal", 0, 3, 1, 3),
    Sketcher.Constraint("Diameter", 0, Q("5 mm")),
    Sketcher.Constraint("DistanceX", -1, 1, 0, 3, Q("240 mm")),
    Sketcher.Constraint("DistanceY", 0, 3, -1, 1, Q("10 mm")),
    Sketcher.Constraint("DistanceX", -1, 1, 1, 3, Q("210 mm")),
])
sketch7.setExpression("Constraints[2]", "Params.sketch7_diameter")
pocket4 = body2.newObject("PartDesign::Pocket", "Pocket003")
pocket4.Profile = sketch7
pocket4.setExpression("Length", "Params.pocket4_length")

# Sketch on YZ plane
sketch8 = body2.newObject("Sketcher::SketchObject", "Sketch007")
sketch8.AttachmentSupport = (doc.getObject("YZ_Plane001"), [""])
sketch8.MapMode = "FlatFace"
sketch8.AttachmentOffset = App.Placement(App.Vector(0, 0, 3), App.Rotation())
sketch8.addGeometry([
    Part.LineSegment(App.Vector(235, 3, 0), App.Vector(205, 3, 0)),
    Part.LineSegment(App.Vector(205, 3, 0), App.Vector(205, 0, 0)),
    Part.LineSegment(App.Vector(205, 0, 0), App.Vector(235, 0, 0)),
    Part.LineSegment(App.Vector(235, 0, 0), App.Vector(235, 3, 0)),
], False)
sketch8.addConstraint([
    Sketcher.Constraint("Coincident", 0, 2, 1, 1),
    Sketcher.Constraint("Coincident", 1, 2, 2, 1),
    Sketcher.Constraint("Coincident", 2, 2, 3, 1),
    Sketcher.Constraint("Coincident", 3, 2, 0, 1),
    Sketcher.Constraint("Horizontal", 0),
    Sketcher.Constraint("Vertical", 1),
    Sketcher.Constraint("Horizontal", 2),
    Sketcher.Constraint("Vertical", 3),
    Sketcher.Constraint("PointOnObject", 1, 2, -1),
    Sketcher.Constraint("DistanceX", 0, 2, 0, 1, Q("30 mm")),
    Sketcher.Constraint("DistanceY", 1, 2, 1, 1, Q("3 mm")),
    Sketcher.Constraint("DistanceX", -1, 1, 0, 2, Q("205 mm")),
])
sketch8.setExpression("Constraints[9]", "Params.sketch8_width")
sketch8.setExpression("Constraints[10]", "Params.sketch8_height")
pocket5 = body2.newObject("PartDesign::Pocket", "Pocket004")
pocket5.Profile = sketch8
pocket5.Type = "ThroughAll"

# Sketch on YZ plane
sketch9 = body2.newObject("Sketcher::SketchObject", "Sketch008")
sketch9.AttachmentSupport = (doc.getObject("YZ_Plane001"), [""])
sketch9.MapMode = "FlatFace"
sketch9.AttachmentOffset = App.Placement(App.Vector(0, 0, 3), App.Rotation())
sketch9.addGeometry([
    Part.LineSegment(App.Vector(240, 6, 0), App.Vector(200, 6, 0)),
    Part.LineSegment(App.Vector(200, 6, 0), App.Vector(200, 3, 0)),
    Part.LineSegment(App.Vector(200, 3, 0), App.Vector(240, 3, 0)),
    Part.LineSegment(App.Vector(240, 3, 0), App.Vector(240, 6, 0)),
], False)
sketch9.addConstraint([
    Sketcher.Constraint("Coincident", 0, 2, 1, 1),
    Sketcher.Constraint("Coincident", 1, 2, 2, 1),
    Sketcher.Constraint("Coincident", 2, 2, 3, 1),
    Sketcher.Constraint("Coincident", 3, 2, 0, 1),
    Sketcher.Constraint("Horizontal", 0),
    Sketcher.Constraint("Vertical", 1),
    Sketcher.Constraint("Horizontal", 2),
    Sketcher.Constraint("Vertical", 3),
    Sketcher.Constraint("DistanceX", 0, 2, 0, 1, Q("40 mm")),
    Sketcher.Constraint("DistanceY", 1, 2, 1, 1, Q("3 mm")),
    Sketcher.Constraint("DistanceX", -1, 1, 0, 2, Q("200 mm")),
    Sketcher.Constraint("DistanceY", -1, 1, 0, 2, Q("6 mm")),
])
sketch9.setExpression("Constraints[8]", "Params.sketch9_width")
sketch9.setExpression("Constraints[9]", "Params.sketch9_height")
pad4 = body2.newObject("PartDesign::Pad", "Pad003")
pad4.Profile = sketch9
pad4.setExpression("Length", "Params.pad4_length")
pad4.Reversed = True
doc.recompute()

fillet3 = body2.newObject("PartDesign::Fillet", "Fillet002")
fillet3.Base = (pad4, edges_at(pad4, [(1.5, 240, 98), (1.5, 250, 98), (1.5, 250, -20)]))
fillet3.setExpression("Radius", "Params.fillet3_radius")

doc.recompute()
